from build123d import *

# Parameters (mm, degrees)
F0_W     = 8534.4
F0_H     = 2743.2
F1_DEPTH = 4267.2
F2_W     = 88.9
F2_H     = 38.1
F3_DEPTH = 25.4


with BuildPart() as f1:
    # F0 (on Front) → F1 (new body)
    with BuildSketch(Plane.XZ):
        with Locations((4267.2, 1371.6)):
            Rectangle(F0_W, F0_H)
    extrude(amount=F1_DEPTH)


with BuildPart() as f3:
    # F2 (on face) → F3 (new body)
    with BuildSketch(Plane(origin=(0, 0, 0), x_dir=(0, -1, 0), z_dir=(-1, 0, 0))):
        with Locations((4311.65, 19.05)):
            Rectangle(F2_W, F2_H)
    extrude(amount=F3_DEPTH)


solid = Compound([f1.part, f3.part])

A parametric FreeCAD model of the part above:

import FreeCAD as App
import Part
import Sketcher

V = App.Vector
Q = App.Units.Quantity


def add_polygon(sketch, points):
    """Adds a closed chain of lines whose ends are joined by coincident constraints."""
    first, n = sketch.GeometryCount, len(points)
    for a, b in zip(points, points[1:] + points[:1]):
        sketch.addGeometry(Part.LineSegment(App.Vector(*a, 0), App.Vector(*b, 0)), False)
    for i in range(n):
        sketch.addConstraint(Sketcher.Constraint("Coincident", first + i, 2, first + (i + 1) % n, 1))

doc = App.newDocument("Part")
body = doc.addObject("PartDesign::Body", "Body")

# Sketch on XZ plane
sketch1 = body.newObject("Sketcher::SketchObject", "Sketch")
sketch1.AttachmentSupport = (doc.getObject("XZ_Plane"), [""])
sketch1.MapMode = "FlatFace"
add_polygon(sketch1, [(0, 2743), (0, 0), (8534, 0), (8534, 2743)])  # lines 0-3
sketch1.addConstraint([
    Sketcher.Constraint("Vertical", 0),
    Sketcher.Constraint("Horizontal", 1),
    Sketcher.Constraint("Vertical", 2),
    Sketcher.Constraint("Horizontal", 3),
    Sketcher.Constraint("Coincident", 0, 2, -1, 1),
    Sketcher.Constraint("DistanceX", 1, 1, 1, 2, Q("336 in")),
    Sketcher.Constraint("DistanceY", 0, 2, 0, 1, Q("108 in")),
])
pad1 = body.newObject("PartDesign::Pad", "Pad")
pad1.Profile = sketch1
pad1.Length = Q("168 in")
body2 = doc.addObject("PartDesign::Body", "Body001")

# Sketch on YZ plane
sketch2 = body2.newObject("Sketcher::SketchObject", "Sketch001")
sketch2.AttachmentSupport = (doc.getObject("YZ_Plane001"), [""])
sketch2.MapMode = "FlatFace"
add_polygon(sketch2, [(-4267, 38), (-4267, 0), (-4356, 0), (-4356, 38)])  # lines 0-3
sketch2.addConstraint([
    Sketcher.Constraint("Vertical", 0),
    Sketcher.Constraint("Horizontal", 1),
    Sketcher.Constraint("Vertical", 2),
    Sketcher.Constraint("Horizontal", 3),
    Sketcher.Constraint("PointOnObject", 0, 2, -1),
    Sketcher.Constraint("DistanceX", 1, 2, 1, 1, Q("3.5 in")),
    Sketcher.Constraint("DistanceY", 0, 2, 0, 1, Q("1.5 in")),
    Sketcher.Constraint("DistanceX", 0, 2, -1, 1, Q("168 in")),
])
pad2 = body2.newObject("PartDesign::Pad", "Pad001")
pad2.Profile = sketch2
pad2.Length = Q("1 in")
pad2.Reversed = True

doc.recompute()
